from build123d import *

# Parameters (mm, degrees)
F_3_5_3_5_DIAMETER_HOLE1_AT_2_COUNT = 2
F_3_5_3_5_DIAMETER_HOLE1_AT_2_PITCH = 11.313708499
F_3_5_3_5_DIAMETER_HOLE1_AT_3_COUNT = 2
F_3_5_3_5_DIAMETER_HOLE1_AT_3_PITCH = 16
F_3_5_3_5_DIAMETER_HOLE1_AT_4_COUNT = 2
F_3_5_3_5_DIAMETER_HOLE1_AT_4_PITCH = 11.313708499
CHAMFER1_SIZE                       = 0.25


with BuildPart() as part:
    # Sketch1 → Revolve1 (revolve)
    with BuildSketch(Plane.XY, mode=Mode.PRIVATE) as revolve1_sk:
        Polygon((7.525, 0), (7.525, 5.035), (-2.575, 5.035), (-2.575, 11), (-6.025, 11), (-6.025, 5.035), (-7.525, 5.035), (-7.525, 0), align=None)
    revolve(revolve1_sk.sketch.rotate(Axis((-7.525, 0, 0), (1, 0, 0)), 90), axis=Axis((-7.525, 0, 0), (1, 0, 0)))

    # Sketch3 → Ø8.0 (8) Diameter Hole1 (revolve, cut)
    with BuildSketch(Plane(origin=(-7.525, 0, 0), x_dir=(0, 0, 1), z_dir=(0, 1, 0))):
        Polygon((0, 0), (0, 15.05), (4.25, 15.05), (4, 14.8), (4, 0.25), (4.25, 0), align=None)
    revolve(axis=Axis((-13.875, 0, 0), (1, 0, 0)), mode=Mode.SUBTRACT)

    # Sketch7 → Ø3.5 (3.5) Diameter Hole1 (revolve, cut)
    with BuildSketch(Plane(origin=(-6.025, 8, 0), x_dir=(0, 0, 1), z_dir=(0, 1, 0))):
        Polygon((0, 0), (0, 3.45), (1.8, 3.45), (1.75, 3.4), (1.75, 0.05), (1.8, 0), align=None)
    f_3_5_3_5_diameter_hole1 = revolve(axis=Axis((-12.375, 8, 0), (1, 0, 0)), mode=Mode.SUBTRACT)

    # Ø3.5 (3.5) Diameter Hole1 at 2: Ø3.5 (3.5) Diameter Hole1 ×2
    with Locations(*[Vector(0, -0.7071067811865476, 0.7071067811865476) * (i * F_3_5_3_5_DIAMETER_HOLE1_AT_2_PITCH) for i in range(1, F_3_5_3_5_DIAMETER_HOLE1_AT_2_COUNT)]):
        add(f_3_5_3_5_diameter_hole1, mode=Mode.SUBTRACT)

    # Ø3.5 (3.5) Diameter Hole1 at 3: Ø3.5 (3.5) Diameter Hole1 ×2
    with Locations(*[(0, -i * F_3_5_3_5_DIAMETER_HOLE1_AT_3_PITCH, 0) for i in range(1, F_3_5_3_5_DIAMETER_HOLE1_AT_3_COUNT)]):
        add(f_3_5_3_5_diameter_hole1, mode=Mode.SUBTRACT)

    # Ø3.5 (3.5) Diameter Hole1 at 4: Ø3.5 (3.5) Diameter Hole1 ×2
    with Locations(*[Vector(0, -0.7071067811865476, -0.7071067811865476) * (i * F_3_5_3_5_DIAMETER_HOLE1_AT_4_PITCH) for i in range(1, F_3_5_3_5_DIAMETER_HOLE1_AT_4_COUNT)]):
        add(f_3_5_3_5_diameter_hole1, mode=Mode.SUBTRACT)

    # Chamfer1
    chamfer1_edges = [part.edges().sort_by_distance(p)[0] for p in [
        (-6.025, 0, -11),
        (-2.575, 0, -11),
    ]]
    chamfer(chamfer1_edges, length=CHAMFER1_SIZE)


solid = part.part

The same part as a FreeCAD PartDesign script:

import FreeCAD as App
import Part
import Sketcher

V = App.Vector
Q = App.Units.Quantity


def edges_at(feature, points):
    """Names of the edges that pass closest to the given points."""
    edges = feature.Shape.Edges
    near = lambda p: min(range(len(edges)), key=lambda i: edges[i].distToShape(Part.Vertex(*p))[0])
    return sorted({f"Edge{near(p) + 1}" for p in points})

doc = App.newDocument("Part")
body = doc.addObject("PartDesign::Body", "Body")

# Sketch on XY plane
sketch1 = body.newObject("Sketcher::SketchObject", "Sketch")
sketch1.AttachmentSupport = (doc.getObject("XY_Plane"), [""])
sketch1.MapMode = "FlatFace"
sketch1.addGeometry([
    Part.LineSegment(V(7.5, 0, 0), V(7.5, 5, 0)),  # 0
    Part.LineSegment(V(7.5, 5, 0), V(-2.6, 5, 0)),  # 1
    Part.LineSegment(V(-2.6, 5, 0), V(-2.6, 11, 0)),  # 2
    Part.LineSegment(V(-2.6, 11, 0), V(-6, 11, 0)),  # 3
    Part.LineSegment(V(-6, 11, 0), V(-6, 5, 0)),  # 4
    Part.LineSegment(V(-6, 5, 0), V(-7.5, 5, 0)),  # 5
    Part.LineSegment(V(-7.5, 5, 0), V(-7.5, 0, 0)),  # 6
    Part.LineSegment(V(-7.5, 0, 0), V(7.5, 0, 0)),  # 7
], False)
sketch1.addConstraint([
    Sketcher.Constraint("Coincident", 0, 2, 1, 1),
    Sketcher.Constraint("Coincident", 1, 2, 2, 1),
    Sketcher.Constraint("Coincident", 2, 2, 3, 1),
    Sketcher.Constraint("Coincident", 3, 2, 4, 1),
    Sketcher.Constraint("Coincident", 4, 2, 5, 1),
    Sketcher.Constraint("Coincident", 5, 2, 6, 1),
    Sketcher.Constraint("Coincident", 6, 2, 7, 1),
    Sketcher.Constraint("Coincident", 7, 2, 0, 1),
    Sketcher.Constraint("Vertical", 0),
    Sketcher.Constraint("Horizontal", 1),
    Sketcher.Constraint("Vertical", 2),
    Sketcher.Constraint("Horizontal", 3),
    Sketcher.Constraint("Vertical", 4),
    Sketcher.Constraint("Horizontal", 5),
    Sketcher.Constraint("Vertical", 6),
    Sketcher.Constraint("Horizontal", 7),
    Sketcher.Constraint("Symmetric", 6, 2, 7, 2, -1, 1),
    Sketcher.Constraint("Horizontal", 1, 2, 4, 2),
    Sketcher.Constraint("DistanceX", 1, 2, 1, 1, Q("10.1 mm")),
    Sketcher.Constraint("DistanceX", 5, 2, 5, 1, Q("1.5 mm")),
    Sketcher.Constraint("DistanceY", -1, 1, 2, 2, Q("11 mm")),
    Sketcher.Constraint("DistanceX", 3, 2, 3, 1, Q("3.45 mm")),
    Sketcher.Constraint("DistanceY", 0, 1, 0, 2, Q("5.035 mm")),
])
revolution = body.newObject("PartDesign::Revolution", "Revolution")
revolution.Profile = sketch1
revolution.ReferenceAxis = (sketch1, ["H_Axis"])
revolution.Angle = 360

# Sketch on XZ plane
sketch2 = body.newObject("Sketcher::SketchObject", "Sketch001")
sketch2.AttachmentSupport = (doc.getObject("XZ_Plane"), [""])
sketch2.MapMode = "FlatFace"
sketch2.addGeometry([
    Part.LineSegment(V(7.53, 0, 0), V(-7.53, 0, 0)),  # 0
    Part.LineSegment(V(-7.53, 0, 0), V(-7.53, 4.25, 0)),  # 1
    Part.LineSegment(V(-7.53, 4.25, 0), V(-7.28, 4, 0)),  # 2
    Part.LineSegment(V(-7.28, 4, 0), V(7.28, 4, 0)),  # 3
    Part.LineSegment(V(7.28, 4, 0), V(7.53, 4.25, 0)),  # 4
    Part.LineSegment(V(7.53, 4.25, 0), V(7.53, 0, 0)),  # 5
], False)
sketch2.addConstraint([
    Sketcher.Constraint("Coincident", 0, 2, 1, 1),
    Sketcher.Constraint("Coincident", 1, 2, 2, 1),
    Sketcher.Constraint("Coincident", 2, 2, 3, 1),
    Sketcher.Constraint("Coincident", 3, 2, 4, 1),
    Sketcher.Constraint("Coincident", 4, 2, 5, 1),
    Sketcher.Constraint("Coincident", 5, 2, 0, 1),
    Sketcher.Constraint("Horizontal", 0),
    Sketcher.Constraint("Vertical", 1),
    Sketcher.Constraint("Horizontal", 3),
    Sketcher.Constraint("Vertical", 5),
    Sketcher.Constraint("Symmetric", 0, 2, 5, 2, -1, 1),
    Sketcher.Constraint("Perpendicular", 2, 4),
    Sketcher.Constraint("Horizontal", 1, 2, 4, 2),
    Sketcher.Constraint("Equal", 2, 4),
    Sketcher.Constraint("DistanceY", -1, 1, 2, 2, Q("4 mm")),
    Sketcher.Constraint("DistanceX", 0, 2, 0, 1, Q("15.05 mm")),
    Sketcher.Constraint("DistanceX", 3, 1, 3, 2, Q("14.55 mm")),
])
groove = body.newObject("PartDesign::Groove", "Groove")
groove.Profile = sketch2
groove.ReferenceAxis = (sketch2, ["H_Axis"])
groove.Angle = 360

# Sketch on XZ plane
sketch3 = body.newObject("Sketcher::SketchObject", "Sketch002")
sketch3.AttachmentSupport = (doc.getObject("XZ_Plane"), [""])
sketch3.MapMode = "FlatFace"
sketch3.AttachmentOffset = App.Placement(V(0, 0, -8), App.Rotation())
sketch3.addGeometry([
    Part.LineSegment(V(-2.58, 0, 0), V(-6.03, 0, 0)),  # 0
    Part.LineSegment(V(-6.03, 0, 0), V(-6.03, 1.8, 0)),  # 1
    Part.LineSegment(V(-6.03, 1.8, 0), V(-5.97, 1.75, 0)),  # 2
    Part.LineSegment(V(-5.97, 1.75, 0), V(-2.62, 1.75, 0)),  # 3
    Part.LineSegment(V(-2.62, 1.75, 0), V(-2.58, 1.8, 0)),  # 4
    Part.LineSegment(V(-2.58, 1.8, 0), V(-2.58, 0, 0)),  # 5
], False)
sketch3.addConstraint([
    Sketcher.Constraint("Coincident", 0, 2, 1, 1),
    Sketcher.Constraint("Coincident", 1, 2, 2, 1),
    Sketcher.Constraint("Coincident", 2, 2, 3, 1),
    Sketcher.Constraint("Coincident", 3, 2, 4, 1),
    Sketcher.Constraint("Coincident", 4, 2, 5, 1),
    Sketcher.Constraint("Coincident", 5, 2, 0, 1),
    Sketcher.Constraint("Horizontal", 0),
    Sketcher.Constraint("Vertical", 1),
    Sketcher.Constraint("Horizontal", 3),
    Sketcher.Constraint("Vertical", 5),
    Sketcher.Constraint("PointOnObject", 0, 2, -1),
    Sketcher.Constraint("Perpendicular", 2, 4),
    Sketcher.Constraint("Horizontal", 1, 2, 4, 2),
    Sketcher.Constraint("Equal", 2, 4),
    Sketcher.Constraint("DistanceY", 1, 1, 1, 2, Q("1.8 mm")),
    Sketcher.Constraint("DistanceX", 0, 2, 0, 1, Q("3.45 mm")),
    Sketcher.Constraint("DistanceX", 3, 1, 3, 2, Q("3.35 mm")),
    Sketcher.Constraint("DistanceX", 0, 2, -1, 1, Q("6.025 mm")),
])
groove2 = body.newObject("PartDesign::Groove", "Groove001")
groove2.Profile = sketch3
groove2.ReferenceAxis = (sketch3, ["H_Axis"])
groove2.Angle = 360
doc.recompute()

datumline = body.newObject("PartDesign::Line", "DatumLine")
datumline.Placement = App.Placement(V(0, 0, 0), App.Rotation(V(0, 0, 1), V(0, -0.707106781, 0.707106781)))
linearpattern = body.newObject("PartDesign::LinearPattern", "LinearPattern")
linearpattern.Originals = [groove2]
linearpattern.Direction = (datumline, [""])
linearpattern.Mode = "offset"
linearpattern.Offset = 11.313708
linearpattern.Occurrences = 2
body.Tip = linearpattern
doc.recompute()

linearpattern2 = body.newObject("PartDesign::LinearPattern", "LinearPattern001")
linearpattern2.Originals = [groove2]
linearpattern2.Direction = (doc.getObject("Y_Axis"), [""])
linearpattern2.Mode = "offset"
linearpattern2.Offset = 16
linearpattern2.Occurrences = 2
linearpattern2.Reversed = True
body.Tip = linearpattern2
doc.recompute()

datumline2 = body.newObject("PartDesign::Line", "DatumLine001")
datumline2.Placement = App.Placement(V(0, 0, 0), App.Rotation(V(0, 0, 1), V(0, -0.707106781, -0.707106781)))
linearpattern3 = body.newObject("PartDesign::LinearPattern", "LinearPattern002")
linearpattern3.Originals = [groove2]
linearpattern3.Direction = (datumline2, [""])
linearpattern3.Mode = "offset"
linearpattern3.Offset = 11.313708
linearpattern3.Occurrences = 2
body.Tip = linearpattern3
doc.recompute()

chamfer = body.newObject("PartDesign::Chamfer", "Chamfer")
chamfer.Base = (linearpattern3, edges_at(linearpattern3, [(-6.025, 0, -11), (-2.575, 0, -11)]))
chamfer.Size = 0.25

doc.recompute()
